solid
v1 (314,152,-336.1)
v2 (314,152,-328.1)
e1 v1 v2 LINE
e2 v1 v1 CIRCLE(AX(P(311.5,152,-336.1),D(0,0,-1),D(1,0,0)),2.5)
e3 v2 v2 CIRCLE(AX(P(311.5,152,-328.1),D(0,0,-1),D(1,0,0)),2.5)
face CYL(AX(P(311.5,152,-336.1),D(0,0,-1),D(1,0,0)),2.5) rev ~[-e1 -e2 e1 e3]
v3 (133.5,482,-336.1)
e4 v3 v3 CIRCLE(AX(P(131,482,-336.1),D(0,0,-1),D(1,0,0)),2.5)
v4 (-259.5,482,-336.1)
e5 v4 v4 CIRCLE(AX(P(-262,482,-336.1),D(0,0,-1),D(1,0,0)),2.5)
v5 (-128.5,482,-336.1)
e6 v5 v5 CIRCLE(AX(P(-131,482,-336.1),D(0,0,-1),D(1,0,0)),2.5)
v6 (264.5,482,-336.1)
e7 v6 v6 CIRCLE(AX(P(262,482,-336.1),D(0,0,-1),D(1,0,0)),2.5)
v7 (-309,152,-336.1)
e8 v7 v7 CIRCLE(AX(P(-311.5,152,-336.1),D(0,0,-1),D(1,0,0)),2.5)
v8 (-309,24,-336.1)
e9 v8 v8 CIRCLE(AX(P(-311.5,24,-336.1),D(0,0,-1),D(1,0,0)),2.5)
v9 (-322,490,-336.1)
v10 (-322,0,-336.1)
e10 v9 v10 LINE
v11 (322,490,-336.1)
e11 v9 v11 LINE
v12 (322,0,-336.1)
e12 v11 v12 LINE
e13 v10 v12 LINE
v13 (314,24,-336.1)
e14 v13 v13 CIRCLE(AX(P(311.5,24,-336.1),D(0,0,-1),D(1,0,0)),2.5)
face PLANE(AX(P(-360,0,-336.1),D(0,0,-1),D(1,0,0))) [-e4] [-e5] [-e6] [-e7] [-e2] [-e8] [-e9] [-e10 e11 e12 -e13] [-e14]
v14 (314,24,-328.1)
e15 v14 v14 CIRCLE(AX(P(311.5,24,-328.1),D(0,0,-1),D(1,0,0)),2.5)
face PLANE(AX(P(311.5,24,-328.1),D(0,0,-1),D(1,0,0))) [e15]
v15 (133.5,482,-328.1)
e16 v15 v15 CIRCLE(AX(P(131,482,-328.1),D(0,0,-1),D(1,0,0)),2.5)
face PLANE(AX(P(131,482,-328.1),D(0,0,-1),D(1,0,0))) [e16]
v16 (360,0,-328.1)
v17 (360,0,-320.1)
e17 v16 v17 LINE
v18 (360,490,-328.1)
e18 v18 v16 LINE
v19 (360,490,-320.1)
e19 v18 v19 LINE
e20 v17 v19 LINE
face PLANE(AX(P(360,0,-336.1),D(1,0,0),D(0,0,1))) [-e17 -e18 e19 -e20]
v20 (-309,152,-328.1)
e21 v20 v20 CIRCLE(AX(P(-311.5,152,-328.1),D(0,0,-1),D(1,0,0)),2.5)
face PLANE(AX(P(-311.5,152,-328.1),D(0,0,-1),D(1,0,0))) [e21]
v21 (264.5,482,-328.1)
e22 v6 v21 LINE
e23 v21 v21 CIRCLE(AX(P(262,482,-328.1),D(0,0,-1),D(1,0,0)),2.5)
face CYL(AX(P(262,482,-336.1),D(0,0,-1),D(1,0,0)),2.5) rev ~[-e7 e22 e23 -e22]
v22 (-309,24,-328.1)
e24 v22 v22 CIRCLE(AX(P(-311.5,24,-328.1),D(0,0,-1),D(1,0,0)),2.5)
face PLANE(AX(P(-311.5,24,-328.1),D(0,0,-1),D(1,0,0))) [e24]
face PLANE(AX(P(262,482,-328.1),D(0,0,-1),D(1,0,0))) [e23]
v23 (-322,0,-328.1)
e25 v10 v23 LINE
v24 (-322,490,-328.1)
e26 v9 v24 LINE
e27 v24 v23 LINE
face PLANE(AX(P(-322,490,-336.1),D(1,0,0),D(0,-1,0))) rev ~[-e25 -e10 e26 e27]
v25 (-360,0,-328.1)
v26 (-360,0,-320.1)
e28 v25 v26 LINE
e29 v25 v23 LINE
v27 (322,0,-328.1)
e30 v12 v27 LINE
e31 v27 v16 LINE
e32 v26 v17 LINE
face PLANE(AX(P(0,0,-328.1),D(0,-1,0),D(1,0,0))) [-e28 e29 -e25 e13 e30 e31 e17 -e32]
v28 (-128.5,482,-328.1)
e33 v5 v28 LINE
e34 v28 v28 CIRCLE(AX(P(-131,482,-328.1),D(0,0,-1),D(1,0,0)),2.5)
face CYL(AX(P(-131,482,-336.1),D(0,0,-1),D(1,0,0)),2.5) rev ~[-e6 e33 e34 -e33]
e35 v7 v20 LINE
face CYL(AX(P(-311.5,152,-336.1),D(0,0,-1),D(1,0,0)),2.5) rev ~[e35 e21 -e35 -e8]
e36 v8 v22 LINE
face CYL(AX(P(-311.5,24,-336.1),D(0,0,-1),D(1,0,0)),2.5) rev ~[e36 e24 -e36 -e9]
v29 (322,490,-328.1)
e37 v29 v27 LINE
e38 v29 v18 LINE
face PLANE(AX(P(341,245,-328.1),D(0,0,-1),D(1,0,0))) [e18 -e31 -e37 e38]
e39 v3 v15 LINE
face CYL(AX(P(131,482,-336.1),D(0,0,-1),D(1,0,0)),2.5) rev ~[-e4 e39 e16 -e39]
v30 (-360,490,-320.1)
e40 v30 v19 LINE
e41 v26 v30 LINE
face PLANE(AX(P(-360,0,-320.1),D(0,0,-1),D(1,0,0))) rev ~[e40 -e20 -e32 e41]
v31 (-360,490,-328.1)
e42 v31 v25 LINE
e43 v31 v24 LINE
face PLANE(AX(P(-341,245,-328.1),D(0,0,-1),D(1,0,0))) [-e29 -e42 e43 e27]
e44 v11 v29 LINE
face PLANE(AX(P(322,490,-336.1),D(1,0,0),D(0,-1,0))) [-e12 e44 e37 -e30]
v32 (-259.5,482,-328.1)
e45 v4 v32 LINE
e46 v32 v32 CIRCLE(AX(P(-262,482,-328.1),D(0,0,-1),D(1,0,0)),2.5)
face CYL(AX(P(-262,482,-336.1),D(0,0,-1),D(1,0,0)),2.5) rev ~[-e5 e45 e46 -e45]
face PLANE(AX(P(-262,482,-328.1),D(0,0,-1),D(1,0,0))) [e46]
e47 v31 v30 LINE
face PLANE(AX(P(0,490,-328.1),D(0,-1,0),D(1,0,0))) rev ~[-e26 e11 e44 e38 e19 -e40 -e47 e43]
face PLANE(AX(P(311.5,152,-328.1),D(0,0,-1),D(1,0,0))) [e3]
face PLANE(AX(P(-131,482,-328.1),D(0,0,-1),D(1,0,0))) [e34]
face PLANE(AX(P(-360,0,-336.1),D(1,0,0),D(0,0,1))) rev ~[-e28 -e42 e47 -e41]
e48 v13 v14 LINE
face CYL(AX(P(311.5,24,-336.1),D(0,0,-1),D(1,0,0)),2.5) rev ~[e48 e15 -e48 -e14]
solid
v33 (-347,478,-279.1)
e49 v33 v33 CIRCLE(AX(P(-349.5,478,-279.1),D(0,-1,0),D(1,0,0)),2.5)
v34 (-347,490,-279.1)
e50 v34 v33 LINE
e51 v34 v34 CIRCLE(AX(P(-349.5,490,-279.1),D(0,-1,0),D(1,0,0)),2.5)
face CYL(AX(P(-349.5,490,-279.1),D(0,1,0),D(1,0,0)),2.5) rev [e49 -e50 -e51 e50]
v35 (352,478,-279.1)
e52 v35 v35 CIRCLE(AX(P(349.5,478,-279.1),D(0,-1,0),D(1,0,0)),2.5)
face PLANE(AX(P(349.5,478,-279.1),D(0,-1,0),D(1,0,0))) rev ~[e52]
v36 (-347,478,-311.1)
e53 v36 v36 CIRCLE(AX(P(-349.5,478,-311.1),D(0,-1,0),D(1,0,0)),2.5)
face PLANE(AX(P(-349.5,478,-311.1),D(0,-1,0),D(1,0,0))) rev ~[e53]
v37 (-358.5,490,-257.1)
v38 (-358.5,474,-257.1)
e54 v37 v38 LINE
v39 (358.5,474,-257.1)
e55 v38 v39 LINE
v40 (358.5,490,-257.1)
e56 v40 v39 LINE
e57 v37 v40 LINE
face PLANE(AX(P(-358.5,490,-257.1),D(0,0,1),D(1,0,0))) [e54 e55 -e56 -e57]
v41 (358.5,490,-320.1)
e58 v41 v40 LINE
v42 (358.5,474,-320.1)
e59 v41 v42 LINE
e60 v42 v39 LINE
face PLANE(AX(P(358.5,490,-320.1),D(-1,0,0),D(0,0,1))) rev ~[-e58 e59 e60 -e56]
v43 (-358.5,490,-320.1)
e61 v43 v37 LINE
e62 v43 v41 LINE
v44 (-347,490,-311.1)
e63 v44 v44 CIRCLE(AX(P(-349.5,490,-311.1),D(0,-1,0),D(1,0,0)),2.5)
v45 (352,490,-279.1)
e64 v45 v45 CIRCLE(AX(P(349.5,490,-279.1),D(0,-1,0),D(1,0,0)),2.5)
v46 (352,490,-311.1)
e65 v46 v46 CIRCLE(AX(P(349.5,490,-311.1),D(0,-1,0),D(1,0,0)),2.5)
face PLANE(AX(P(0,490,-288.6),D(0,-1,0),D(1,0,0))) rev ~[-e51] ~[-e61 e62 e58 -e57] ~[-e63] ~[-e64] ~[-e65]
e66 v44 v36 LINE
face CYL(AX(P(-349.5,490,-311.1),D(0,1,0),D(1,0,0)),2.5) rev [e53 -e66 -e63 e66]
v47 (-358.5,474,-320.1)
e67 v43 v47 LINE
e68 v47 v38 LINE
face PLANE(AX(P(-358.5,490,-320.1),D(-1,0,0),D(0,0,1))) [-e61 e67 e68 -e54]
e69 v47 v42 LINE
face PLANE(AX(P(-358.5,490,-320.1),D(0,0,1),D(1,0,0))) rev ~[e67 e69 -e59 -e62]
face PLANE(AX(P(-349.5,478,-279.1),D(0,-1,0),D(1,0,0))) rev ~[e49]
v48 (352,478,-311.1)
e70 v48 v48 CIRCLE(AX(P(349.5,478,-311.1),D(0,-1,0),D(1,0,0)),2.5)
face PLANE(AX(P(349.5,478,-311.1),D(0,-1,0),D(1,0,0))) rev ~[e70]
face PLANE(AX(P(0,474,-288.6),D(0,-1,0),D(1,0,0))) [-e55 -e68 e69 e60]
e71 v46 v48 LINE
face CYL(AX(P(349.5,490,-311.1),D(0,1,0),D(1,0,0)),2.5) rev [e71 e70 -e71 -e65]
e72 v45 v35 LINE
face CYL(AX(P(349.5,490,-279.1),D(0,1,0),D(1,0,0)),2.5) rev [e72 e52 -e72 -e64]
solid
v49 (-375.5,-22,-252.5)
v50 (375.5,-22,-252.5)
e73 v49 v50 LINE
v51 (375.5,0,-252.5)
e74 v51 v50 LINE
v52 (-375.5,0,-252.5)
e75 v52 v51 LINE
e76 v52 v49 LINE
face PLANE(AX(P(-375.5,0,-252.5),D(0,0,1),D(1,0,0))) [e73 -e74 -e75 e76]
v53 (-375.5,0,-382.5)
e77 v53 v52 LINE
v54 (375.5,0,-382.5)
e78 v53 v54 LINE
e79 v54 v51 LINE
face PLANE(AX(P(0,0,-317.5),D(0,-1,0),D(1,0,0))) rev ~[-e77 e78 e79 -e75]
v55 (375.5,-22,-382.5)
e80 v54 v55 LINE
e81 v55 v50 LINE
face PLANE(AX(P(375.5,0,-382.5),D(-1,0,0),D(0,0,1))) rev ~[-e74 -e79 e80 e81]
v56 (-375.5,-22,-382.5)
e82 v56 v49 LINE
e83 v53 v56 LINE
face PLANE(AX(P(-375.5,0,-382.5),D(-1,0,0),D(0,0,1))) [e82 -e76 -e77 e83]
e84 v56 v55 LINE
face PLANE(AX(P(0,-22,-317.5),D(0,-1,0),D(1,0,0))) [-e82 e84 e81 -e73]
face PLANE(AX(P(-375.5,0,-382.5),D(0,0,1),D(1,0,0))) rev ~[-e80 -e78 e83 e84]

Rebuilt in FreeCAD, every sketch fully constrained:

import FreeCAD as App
import Part
import Sketcher

V = App.Vector
Q = App.Units.Quantity

doc = App.newDocument("Part")
body = doc.addObject("PartDesign::Body", "Body")

# Sketch on XZ plane
sketch1 = body.newObject("Sketcher::SketchObject", "Sketch")
sketch1.AttachmentSupport = (doc.getObject("XZ_Plane"), [""])
sketch1.MapMode = "FlatFace"
sketch1.addGeometry([
    Part.LineSegment(V(-360, -320, 0), V(-360, -336, 0)),
    Part.LineSegment(V(-360, -336, 0), V(360, -336, 0)),
    Part.LineSegment(V(360, -336, 0), V(360, -320, 0)),
    Part.LineSegment(V(360, -320, 0), V(-360, -320, 0)),
], False)
sketch1.addConstraint([
    Sketcher.Constraint("Coincident", 0, 2, 1, 1),
    Sketcher.Constraint("Coincident", 1, 2, 2, 1),
    Sketcher.Constraint("Coincident", 2, 2, 3, 1),
    Sketcher.Constraint("Coincident", 3, 2, 0, 1),
    Sketcher.Constraint("Vertical", 0),
    Sketcher.Constraint("Horizontal", 1),
    Sketcher.Constraint("Vertical", 2),
    Sketcher.Constraint("Horizontal", 3),
    Sketcher.Constraint("DistanceX", 1, 1, 1, 2, Q("720 mm")),
    Sketcher.Constraint("DistanceY", 0, 2, 0, 1, Q("16 mm")),
    Sketcher.Constraint("DistanceX", 0, 2, -1, 1, Q("360 mm")),
    Sketcher.Constraint("DistanceY", 0, 2, -1, 1, Q("336.1 mm")),
])
pad1 = body.newObject("PartDesign::Pad", "Pad")
pad1.Profile = sketch1
pad1.Length = 490
pad1.Reversed = True

# Sketch on XY plane
sketch2 = body.newObject("Sketcher::SketchObject", "Sketch001")
sketch2.AttachmentSupport = (doc.getObject("XY_Plane"), [""])
sketch2.MapMode = "FlatFace"
sketch2.AttachmentOffset = App.Placement(V(0, 0, -336.1), App.Rotation())
sketch2.addGeometry([
    Part.LineSegment(V(-360, 0, 0), V(-360, 490, 0)),  # 0
    Part.LineSegment(V(-360, 490, 0), V(-322, 490, 0)),  # 1
    Part.LineSegment(V(-322, 490, 0), V(-322, 0, 0)),  # 2
    Part.LineSegment(V(-322, 0, 0), V(-360, 0, 0)),  # 3
    Part.LineSegment(V(322, 0, 0), V(322, 490, 0)),  # 4
    Part.LineSegment(V(322, 490, 0), V(360, 490, 0)),  # 5
    Part.LineSegment(V(360, 490, 0), V(360, 0, 0)),  # 6
    Part.LineSegment(V(360, 0, 0), V(322, 0, 0)),  # 7
    Part.Circle(V(-311.5, 24, 0), V(0, 0, 1), 2.5),  # 8
    Part.Circle(V(-311.5, 152, 0), V(0, 0, 1), 2.5),  # 9
    Part.Circle(V(311.5, 152, 0), V(0, 0, 1), 2.5),  # 10
    Part.Circle(V(311.5, 24, 0), V(0, 0, 1), 2.5),  # 11
    Part.Circle(V(-262, 482, 0), V(0, 0, 1), 2.5),  # 12
    Part.Circle(V(-131, 482, 0), V(0, 0, 1), 2.5),  # 13
    Part.Circle(V(131, 482, 0), V(0, 0, 1), 2.5),  # 14
    Part.Circle(V(262, 482, 0), V(0, 0, 1), 2.5),  # 15
], False)
sketch2.addConstraint([
    Sketcher.Constraint("Coincident", 0, 2, 1, 1),
    Sketcher.Constraint("Coincident", 1, 2, 2, 1),
    Sketcher.Constraint("Coincident", 2, 2, 3, 1),
    Sketcher.Constraint("Coincident", 3, 2, 0, 1),
    Sketcher.Constraint("Coincident", 4, 2, 5, 1),
    Sketcher.Constraint("Coincident", 5, 2, 6, 1),
    Sketcher.Constraint("Coincident", 6, 2, 7, 1),
    Sketcher.Constraint("Coincident", 7, 2, 4, 1),
    Sketcher.Constraint("Vertical", 0),
    Sketcher.Constraint("Horizontal", 1),
    Sketcher.Constraint("Vertical", 2),
    Sketcher.Constraint("Horizontal", 3),
    Sketcher.Constraint("Vertical", 4),
    Sketcher.Constraint("Horizontal", 5),
    Sketcher.Constraint("Vertical", 6),
    Sketcher.Constraint("Horizontal", 7),
    Sketcher.Constraint("Equal", 8, 9),
    Sketcher.Constraint("Equal", 9, 10),
    Sketcher.Constraint("Equal", 10, 11),
    Sketcher.Constraint("Equal", 11, 12),
    Sketcher.Constraint("Equal", 12, 13),
    Sketcher.Constraint("Equal", 13, 14),
    Sketcher.Constraint("Equal", 14, 15),
    Sketcher.Constraint("Symmetric", 3, 2, 6, 2, -1, 1),
    Sketcher.Constraint("Symmetric", 9, 3, 10, 3, -2),
    Sketcher.Constraint("Symmetric", 8, 3, 11, 3, -2),
    Sketcher.Constraint("Symmetric", 13, 3, 14, 3, -2),
    Sketcher.Constraint("Symmetric", 12, 3, 15, 3, -2),
    Sketcher.Constraint("Symmetric", 1, 2, 4, 2, -2),
    Sketcher.Constraint("PointOnObject", 2, 2, -1),
    Sketcher.Constraint("Horizontal", 12, 3, 13, 3),
    Sketcher.Constraint("Vertical", 8, 3, 9, 3),
    Sketcher.Constraint("Diameter", 8, Q("5 mm")),
    Sketcher.Constraint("DistanceX", 1, 1, 1, 2, Q("38 mm")),
    Sketcher.Constraint("DistanceY", 0, 1, 0, 2, Q("490 mm")),
    Sketcher.Constraint("DistanceY", -1, 1, 8, 3, Q("24 mm")),
    Sketcher.Constraint("DistanceY", -1, 1, 9, 3, Q("152 mm")),
    Sketcher.Constraint("DistanceX", 12, 3, -1, 1, Q("262 mm")),
    Sketcher.Constraint("DistanceY", -1, 1, 12, 3, Q("482 mm")),
    Sketcher.Constraint("DistanceX", 13, 3, -1, 1, Q("131 mm")),
    Sketcher.Constraint("DistanceX", 0, 2, -1, 1, Q("360 mm")),
    Sketcher.Constraint("DistanceX", 9, 3, 10, 3, Q("623 mm")),
])
pocket1 = body.newObject("PartDesign::Pocket", "Pocket")
pocket1.Profile = sketch2
pocket1.Length = 8
pocket1.Reversed = True
body2 = doc.addObject("PartDesign::Body", "Body001")

# Sketch on XZ plane
sketch3 = body2.newObject("Sketcher::SketchObject", "Sketch002")
sketch3.AttachmentSupport = (doc.getObject("XZ_Plane001"), [""])
sketch3.MapMode = "FlatFace"
sketch3.AttachmentOffset = App.Placement(V(0, 0, -490), App.Rotation())
sketch3.addGeometry([
    Part.LineSegment(V(-358, -257, 0), V(-358, -320, 0)),
    Part.LineSegment(V(-358, -320, 0), V(358, -320, 0)),
    Part.LineSegment(V(358, -320, 0), V(358, -257, 0)),
    Part.LineSegment(V(358, -257, 0), V(-358, -257, 0)),
], False)
sketch3.addConstraint([
    Sketcher.Constraint("Coincident", 0, 2, 1, 1),
    Sketcher.Constraint("Coincident", 1, 2, 2, 1),
    Sketcher.Constraint("Coincident", 2, 2, 3, 1),
    Sketcher.Constraint("Coincident", 3, 2, 0, 1),
    Sketcher.Constraint("Vertical", 0),
    Sketcher.Constraint("Horizontal", 1),
    Sketcher.Constraint("Vertical", 2),
    Sketcher.Constraint("Horizontal", 3),
    Sketcher.Constraint("DistanceX", 1, 1, 1, 2, Q("717 mm")),
    Sketcher.Constraint("DistanceY", 0, 2, 0, 1, Q("63 mm")),
    Sketcher.Constraint("DistanceX", 0, 2, -1, 1, Q("358.5 mm")),
    Sketcher.Constraint("DistanceY", 0, 2, -1, 1, Q("320.1 mm")),
])
pad2 = body2.newObject("PartDesign::Pad", "Pad001")
pad2.Profile = sketch3
pad2.Length = 16

# Sketch on XZ plane
sketch4 = body2.newObject("Sketcher::SketchObject", "Sketch003")
sketch4.AttachmentSupport = (doc.getObject("XZ_Plane001"), [""])
sketch4.MapMode = "FlatFace"
sketch4.AttachmentOffset = App.Placement(V(0, 0, -490), App.Rotation())
sketch4.addGeometry([
    Part.Circle(V(349.5, -311.1, 0), V(0, 0, 1), 2.5),  # 0
    Part.Circle(V(349.5, -279.1, 0), V(0, 0, 1), 2.5),  # 1
    Part.Circle(V(349.5, -247.1, 0), V(0, 0, 1), 2.5),  # 2
    Part.Circle(V(-349.5, -247.1, 0), V(0, 0, 1), 2.5),  # 3
    Part.Circle(V(-349.5, -279.1, 0), V(0, 0, 1), 2.5),  # 4
    Part.Circle(V(-349.5, -311.1, 0), V(0, 0, 1), 2.5),  # 5
], False)
sketch4.addConstraint([
    Sketcher.Constraint("Equal", 0, 1),
    Sketcher.Constraint("Equal", 1, 2),
    Sketcher.Constraint("Equal", 2, 3),
    Sketcher.Constraint("Equal", 3, 4),
    Sketcher.Constraint("Equal", 4, 5),
    Sketcher.Constraint("Symmetric", 2, 3, 3, 3, -2),
    Sketcher.Constraint("Symmetric", 1, 3, 4, 3, -2),
    Sketcher.Constraint("Symmetric", 0, 3, 5, 3, -2),
    Sketcher.Constraint("Vertical", 0, 3, 1, 3),
    Sketcher.Constraint("Vertical", 1, 3, 2, 3),
    Sketcher.Constraint("Diameter", 0, Q("5 mm")),
    Sketcher.Constraint("DistanceY", 0, 3, 1, 3, Q("32 mm")),
    Sketcher.Constraint("DistanceY", 1, 3, 2, 3, Q("32 mm")),
    Sketcher.Constraint("DistanceX", 3, 3, 2, 3, Q("699 mm")),
    Sketcher.Constraint("DistanceY", 0, 3, -1, 1, Q("311.1 mm")),
])
pocket2 = body2.newObject("PartDesign::Pocket", "Pocket001")
pocket2.Profile = sketch4
pocket2.Length = 12
pocket2.Reversed = True
body3 = doc.addObject("PartDesign::Body", "Body002")

# Sketch on XZ plane
sketch5 = body3.newObject("Sketcher::SketchObject", "Sketch004")
sketch5.AttachmentSupport = (doc.getObject("XZ_Plane002"), [""])
sketch5.MapMode = "FlatFace"
sketch5.addGeometry([
    Part.LineSegment(V(-376, -252, 0), V(-376, -382, 0)),
    Part.LineSegment(V(-376, -382, 0), V(376, -382, 0)),
    Part.LineSegment(V(376, -382, 0), V(376, -252, 0)),
    Part.LineSegment(V(376, -252, 0), V(-376, -252, 0)),
], False)
sketch5.addConstraint([
    Sketcher.Constraint("Coincident", 0, 2, 1, 1),
    Sketcher.Constraint("Coincident", 1, 2, 2, 1),
    Sketcher.Constraint("Coincident", 2, 2, 3, 1),
    Sketcher.Constraint("Coincident", 3, 2, 0, 1),
    Sketcher.Constraint("Vertical", 0),
    Sketcher.Constraint("Horizontal", 1),
    Sketcher.Constraint("Vertical", 2),
    Sketcher.Constraint("Horizontal", 3),
    Sketcher.Constraint("DistanceX", 1, 1, 1, 2, Q("751 mm")),
    Sketcher.Constraint("DistanceY", 0, 2, 0, 1, Q("130 mm")),
    Sketcher.Constraint("DistanceX", 0, 2, -1, 1, Q("375.5 mm")),
    Sketcher.Constraint("DistanceY", 0, 2, -1, 1, Q("382.5 mm")),
])
pad3 = body3.newObject("PartDesign::Pad", "Pad002")
pad3.Profile = sketch5
pad3.Length = 22

doc.recompute()
